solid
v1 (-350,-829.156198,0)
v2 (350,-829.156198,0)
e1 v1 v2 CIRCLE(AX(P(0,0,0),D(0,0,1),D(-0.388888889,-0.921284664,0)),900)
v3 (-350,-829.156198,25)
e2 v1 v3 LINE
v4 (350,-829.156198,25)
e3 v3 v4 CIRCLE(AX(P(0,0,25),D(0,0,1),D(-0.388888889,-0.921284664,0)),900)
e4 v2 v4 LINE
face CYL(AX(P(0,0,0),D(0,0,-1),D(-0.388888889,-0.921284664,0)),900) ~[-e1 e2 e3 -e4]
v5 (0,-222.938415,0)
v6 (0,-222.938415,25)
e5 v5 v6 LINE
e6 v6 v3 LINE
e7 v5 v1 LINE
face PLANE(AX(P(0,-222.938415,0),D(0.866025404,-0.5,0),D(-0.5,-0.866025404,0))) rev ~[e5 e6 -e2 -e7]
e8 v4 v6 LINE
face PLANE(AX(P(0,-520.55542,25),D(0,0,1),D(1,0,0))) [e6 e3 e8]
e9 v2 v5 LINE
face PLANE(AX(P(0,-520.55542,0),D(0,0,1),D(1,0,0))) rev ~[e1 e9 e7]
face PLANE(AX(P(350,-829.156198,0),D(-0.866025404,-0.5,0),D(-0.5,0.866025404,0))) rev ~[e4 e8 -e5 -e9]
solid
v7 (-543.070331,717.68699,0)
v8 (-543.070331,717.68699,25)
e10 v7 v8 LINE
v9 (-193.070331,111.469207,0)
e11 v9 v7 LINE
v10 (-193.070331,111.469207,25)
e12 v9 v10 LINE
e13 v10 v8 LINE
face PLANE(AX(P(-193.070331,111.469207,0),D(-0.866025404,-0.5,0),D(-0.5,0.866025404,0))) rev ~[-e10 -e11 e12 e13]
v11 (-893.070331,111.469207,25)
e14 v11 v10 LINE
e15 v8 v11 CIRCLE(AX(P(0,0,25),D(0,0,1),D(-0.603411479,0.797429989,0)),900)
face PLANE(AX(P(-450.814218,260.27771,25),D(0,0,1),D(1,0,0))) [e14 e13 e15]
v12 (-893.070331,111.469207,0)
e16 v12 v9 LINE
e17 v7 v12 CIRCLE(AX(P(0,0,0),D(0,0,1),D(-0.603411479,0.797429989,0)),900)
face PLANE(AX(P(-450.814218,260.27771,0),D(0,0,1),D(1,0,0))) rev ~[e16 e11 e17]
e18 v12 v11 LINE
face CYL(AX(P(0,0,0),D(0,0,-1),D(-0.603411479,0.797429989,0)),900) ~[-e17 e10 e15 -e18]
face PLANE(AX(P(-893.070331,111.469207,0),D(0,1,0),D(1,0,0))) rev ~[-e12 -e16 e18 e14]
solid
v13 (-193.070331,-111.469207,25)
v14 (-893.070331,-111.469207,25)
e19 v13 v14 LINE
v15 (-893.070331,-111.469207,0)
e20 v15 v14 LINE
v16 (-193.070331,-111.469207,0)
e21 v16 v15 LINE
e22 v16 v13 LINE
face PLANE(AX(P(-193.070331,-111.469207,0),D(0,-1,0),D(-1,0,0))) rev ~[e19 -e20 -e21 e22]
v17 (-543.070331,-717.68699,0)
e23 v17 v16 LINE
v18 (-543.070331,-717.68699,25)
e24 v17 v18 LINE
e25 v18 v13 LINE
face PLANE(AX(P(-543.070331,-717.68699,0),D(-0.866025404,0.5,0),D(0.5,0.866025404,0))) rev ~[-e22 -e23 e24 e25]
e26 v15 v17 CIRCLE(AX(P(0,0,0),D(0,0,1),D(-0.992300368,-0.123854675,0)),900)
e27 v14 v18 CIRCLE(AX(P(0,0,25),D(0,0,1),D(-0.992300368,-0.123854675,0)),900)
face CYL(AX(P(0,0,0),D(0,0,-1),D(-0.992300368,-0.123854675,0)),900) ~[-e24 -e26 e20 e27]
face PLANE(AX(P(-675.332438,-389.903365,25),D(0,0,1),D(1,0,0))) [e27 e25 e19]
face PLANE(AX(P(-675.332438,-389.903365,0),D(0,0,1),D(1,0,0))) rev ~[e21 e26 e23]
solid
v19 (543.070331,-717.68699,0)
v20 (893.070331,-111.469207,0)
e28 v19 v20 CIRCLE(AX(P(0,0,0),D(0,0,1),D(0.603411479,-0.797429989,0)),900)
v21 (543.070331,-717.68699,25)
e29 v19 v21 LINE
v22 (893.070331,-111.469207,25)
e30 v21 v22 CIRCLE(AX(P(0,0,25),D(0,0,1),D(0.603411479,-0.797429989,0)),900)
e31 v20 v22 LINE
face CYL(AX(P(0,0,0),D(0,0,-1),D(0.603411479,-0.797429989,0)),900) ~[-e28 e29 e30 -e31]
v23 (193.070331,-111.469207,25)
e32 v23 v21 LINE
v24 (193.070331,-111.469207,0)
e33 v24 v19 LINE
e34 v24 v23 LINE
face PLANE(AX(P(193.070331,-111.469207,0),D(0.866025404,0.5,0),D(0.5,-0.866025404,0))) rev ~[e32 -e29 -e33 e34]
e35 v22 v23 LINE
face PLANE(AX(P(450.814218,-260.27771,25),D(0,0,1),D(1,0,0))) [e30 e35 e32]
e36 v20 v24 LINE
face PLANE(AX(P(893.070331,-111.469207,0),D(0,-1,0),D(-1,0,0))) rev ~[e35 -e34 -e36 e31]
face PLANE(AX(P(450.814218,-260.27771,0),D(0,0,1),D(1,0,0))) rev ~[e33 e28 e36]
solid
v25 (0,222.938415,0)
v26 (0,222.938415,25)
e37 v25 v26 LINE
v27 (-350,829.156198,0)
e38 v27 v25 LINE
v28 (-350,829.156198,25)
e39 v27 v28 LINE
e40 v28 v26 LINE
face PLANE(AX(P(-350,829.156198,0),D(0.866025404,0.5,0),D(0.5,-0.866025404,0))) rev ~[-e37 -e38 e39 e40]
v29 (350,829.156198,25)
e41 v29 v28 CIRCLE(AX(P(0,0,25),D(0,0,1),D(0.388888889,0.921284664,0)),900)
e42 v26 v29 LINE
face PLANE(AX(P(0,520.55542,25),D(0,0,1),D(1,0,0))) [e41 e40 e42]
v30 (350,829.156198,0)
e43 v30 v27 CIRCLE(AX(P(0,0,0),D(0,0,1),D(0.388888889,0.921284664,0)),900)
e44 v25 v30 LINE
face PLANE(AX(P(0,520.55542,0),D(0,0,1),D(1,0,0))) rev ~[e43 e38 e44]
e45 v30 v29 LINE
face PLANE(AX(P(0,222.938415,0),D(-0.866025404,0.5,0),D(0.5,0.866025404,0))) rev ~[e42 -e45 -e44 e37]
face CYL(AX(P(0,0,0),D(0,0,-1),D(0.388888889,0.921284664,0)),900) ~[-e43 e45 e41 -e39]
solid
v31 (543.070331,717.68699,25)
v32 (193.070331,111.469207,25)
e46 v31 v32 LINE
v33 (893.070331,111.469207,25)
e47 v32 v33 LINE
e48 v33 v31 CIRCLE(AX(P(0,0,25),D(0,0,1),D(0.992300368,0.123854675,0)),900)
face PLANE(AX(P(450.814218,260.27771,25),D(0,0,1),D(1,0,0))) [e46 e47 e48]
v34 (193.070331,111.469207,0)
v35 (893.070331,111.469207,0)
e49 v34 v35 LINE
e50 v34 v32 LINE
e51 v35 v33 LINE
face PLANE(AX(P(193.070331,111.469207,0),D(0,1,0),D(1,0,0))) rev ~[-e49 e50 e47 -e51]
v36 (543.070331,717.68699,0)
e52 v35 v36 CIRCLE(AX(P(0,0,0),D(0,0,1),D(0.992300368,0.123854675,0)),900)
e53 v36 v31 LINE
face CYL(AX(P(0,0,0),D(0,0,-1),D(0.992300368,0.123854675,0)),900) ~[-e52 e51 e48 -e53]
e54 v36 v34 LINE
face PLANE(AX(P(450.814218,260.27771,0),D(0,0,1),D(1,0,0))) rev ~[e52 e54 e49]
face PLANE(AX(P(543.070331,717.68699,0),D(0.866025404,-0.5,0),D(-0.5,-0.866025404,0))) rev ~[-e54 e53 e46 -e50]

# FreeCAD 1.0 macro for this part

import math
import FreeCAD as App
import Part
import Sketcher

V = App.Vector
Q = App.Units.Quantity

doc = App.newDocument("Part")
body = doc.addObject("PartDesign::Body", "Body")

# Sketch on XY plane
sketch1 = body.newObject("Sketcher::SketchObject", "Sketch")
sketch1.AttachmentSupport = (doc.getObject("XY_Plane"), [""])
sketch1.MapMode = "FlatFace"
sketch1.addGeometry([
    Part.LineSegment(V(-193.070331, 111.469207, 0), V(-543.070331, 717.68699, 0)),
    Part.ArcOfCircle(Part.Circle(V(0, 0, 0), V(0, 0, 1), 900), math.radians(127.11462), math.radians(172.88538)),
    Part.LineSegment(V(-893.070331, 111.469207, 0), V(-193.070331, 111.469207, 0)),
], False)
sketch1.addConstraint([
    Sketcher.Constraint("Coincident", 0, 2, 1, 1),
    Sketcher.Constraint("Coincident", 1, 2, 2, 1),
    Sketcher.Constraint("Coincident", 2, 2, 0, 1),
    Sketcher.Constraint("Horizontal", 2),
    Sketcher.Constraint("Coincident", 1, 3, -1, 1),
    Sketcher.Constraint("Radius", 1, Q("900 mm")),
    Sketcher.Constraint("DistanceX", 2, 1, 2, 2, Q("700 mm")),
    Sketcher.Constraint("Angle", 0, Q("120 deg")),
    Sketcher.Constraint("Distance", 0, Q("700 mm")),
])
pad1 = body.newObject("PartDesign::Pad", "Pad")
pad1.Profile = sketch1
pad1.Length = 25
body2 = doc.addObject("PartDesign::Body", "Body001")

# Sketch on XY plane
sketch2 = body2.newObject("Sketcher::SketchObject", "Sketch001")
sketch2.AttachmentSupport = (doc.getObject("XY_Plane001"), [""])
sketch2.MapMode = "FlatFace"
sketch2.addGeometry([
    Part.LineSegment(V(0, 222.938415, 0), V(350, 829.156198, 0)),
    Part.ArcOfCircle(Part.Circle(V(0, 0, 0), V(0, 0, 1), 900), math.radians(67.11462), math.radians(112.88538)),
    Part.LineSegment(V(-350, 829.156198, 0), V(0, 222.938415, 0)),
], False)
sketch2.addConstraint([
    Sketcher.Constraint("Coincident", 0, 2, 1, 1),
    Sketcher.Constraint("Coincident", 1, 2, 2, 1),
    Sketcher.Constraint("Coincident", 2, 2, 0, 1),
    Sketcher.Constraint("Coincident", 1, 3, -1, 1),
    Sketcher.Constraint("PointOnObject", 2, 2, -2),
    Sketcher.Constraint("Equal", 0, 2),
    Sketcher.Constraint("Radius", 1, Q("900 mm")),
    Sketcher.Constraint("Angle", 0, Q("60 deg")),
    Sketcher.Constraint("Distance", 0, Q("700 mm")),
])
pad2 = body2.newObject("PartDesign::Pad", "Pad001")
pad2.Profile = sketch2
pad2.Length = 25
body3 = doc.addObject("PartDesign::Body", "Body002")

# Sketch on XY plane
sketch3 = body3.newObject("Sketcher::SketchObject", "Sketch002")
sketch3.AttachmentSupport = (doc.getObject("XY_Plane002"), [""])
sketch3.MapMode = "FlatFace"
sketch3.addGeometry([
    Part.LineSegment(V(193.070331, 111.469207, 0), V(893.070331, 111.469207, 0)),
    Part.ArcOfCircle(Part.Circle(V(0, 0, 0), V(0, 0, 1), 900), math.radians(7.11462), math.radians(52.88538)),
    Part.LineSegment(V(543.070331, 717.68699, 0), V(193.070331, 111.469207, 0)),
], False)
sketch3.addConstraint([
    Sketcher.Constraint("Coincident", 0, 2, 1, 1),
    Sketcher.Constraint("Coincident", 1, 2, 2, 1),
    Sketcher.Constraint("Coincident", 2, 2, 0, 1),
    Sketcher.Constraint("Horizontal", 0),
    Sketcher.Constraint("Coincident", 1, 3, -1, 1),
    Sketcher.Constraint("Radius", 1, Q("900 mm")),
    Sketcher.Constraint("DistanceX", 0, 1, 0, 2, Q("700 mm")),
    Sketcher.Constraint("Angle", 2, Q("-120 deg")),
    Sketcher.Constraint("Distance", 2, Q("700 mm")),
])
pad3 = body3.newObject("PartDesign::Pad", "Pad002")
pad3.Profile = sketch3
pad3.Length = 25
body4 = doc.addObject("PartDesign::Body", "Body003")

# Sketch on XY plane
sketch4 = body4.newObject("Sketcher::SketchObject", "Sketch003")
sketch4.AttachmentSupport = (doc.getObject("XY_Plane003"), [""])
sketch4.MapMode = "FlatFace"
sketch4.addGeometry([
    Part.LineSegment(V(193.070331, -111.469207, 0), V(543.070331, -717.68699, 0)),
    Part.ArcOfCircle(Part.Circle(V(0, 0, 0), V(0, 0, 1), 900), math.radians(-52.88538), math.radians(-7.11462)),
    Part.LineSegment(V(893.070331, -111.469207, 0), V(193.070331, -111.469207, 0)),
], False)
sketch4.addConstraint([
    Sketcher.Constraint("Coincident", 0, 2, 1, 1),
    Sketcher.Constraint("Coincident", 1, 2, 2, 1),
    Sketcher.Constraint("Coincident", 2, 2, 0, 1),
    Sketcher.Constraint("Horizontal", 2),
    Sketcher.Constraint("Coincident", 1, 3, -1, 1),
    Sketcher.Constraint("Radius", 1, Q("900 mm")),
    Sketcher.Constraint("DistanceX", 2, 2, 2, 1, Q("700 mm")),
    Sketcher.Constraint("Angle", 0, Q("-60 deg")),
    Sketcher.Constraint("Distance", 0, Q("700 mm")),
])
pad4 = body4.newObject("PartDesign::Pad", "Pad003")
pad4.Profile = sketch4
pad4.Length = 25
body5 = doc.addObject("PartDesign::Body", "Body004")

# Sketch on XY plane
sketch5 = body5.newObject("Sketcher::SketchObject", "Sketch004")
sketch5.AttachmentSupport = (doc.getObject("XY_Plane004"), [""])
sketch5.MapMode = "FlatFace"
sketch5.addGeometry([
    Part.LineSegment(V(0, -222.938415, 0), V(-350, -829.156198, 0)),
    Part.ArcOfCircle(Part.Circle(V(0, 0, 0), V(0, 0, 1), 900), math.radians(-112.88538), math.radians(-67.11462)),
    Part.LineSegment(V(350, -829.156198, 0), V(0, -222.938415, 0)),
], False)
sketch5.addConstraint([
    Sketcher.Constraint("Coincident", 0, 2, 1, 1),
    Sketcher.Constraint("Coincident", 1, 2, 2, 1),
    Sketcher.Constraint("Coincident", 2, 2, 0, 1),
    Sketcher.Constraint("Coincident", 1, 3, -1, 1),
    Sketcher.Constraint("PointOnObject", 2, 2, -2),
    Sketcher.Constraint("Equal", 0, 2),
    Sketcher.Constraint("Radius", 1, Q("900 mm")),
    Sketcher.Constraint("Angle", 0, Q("-120 deg")),
    Sketcher.Constraint("Distance", 0, Q("700 mm")),
])
pad5 = body5.newObject("PartDesign::Pad", "Pad004")
pad5.Profile = sketch5
pad5.Length = 25
body6 = doc.addObject("PartDesign::Body", "Body005")

# Sketch on XY plane
sketch6 = body6.newObject("Sketcher::SketchObject", "Sketch005")
sketch6.AttachmentSupport = (doc.getObject("XY_Plane005"), [""])
sketch6.MapMode = "FlatFace"
sketch6.addGeometry([
    Part.LineSegment(V(-543.070331, -717.68699, 0), V(-193.070331, -111.469207, 0)),
    Part.LineSegment(V(-193.070331, -111.469207, 0), V(-893.070331, -111.469207, 0)),
    Part.ArcOfCircle(Part.Circle(V(0, 0, 0), V(0, 0, 1), 900), math.radians(-172.88538), math.radians(-127.11462)),
], False)
sketch6.addConstraint([
    Sketcher.Constraint("Coincident", 0, 2, 1, 1),
    Sketcher.Constraint("Coincident", 1, 2, 2, 1),
    Sketcher.Constraint("Coincident", 2, 2, 0, 1),
    Sketcher.Constraint("Horizontal", 1),
    Sketcher.Constraint("Coincident", 2, 3, -1, 1),
    Sketcher.Constraint("Radius", 2, Q("900 mm")),
    Sketcher.Constraint("DistanceX", 1, 2, 1, 1, Q("700 mm")),
    Sketcher.Constraint("Angle", 0, Q("60 deg")),
    Sketcher.Constraint("Distance", 0, Q("700 mm")),
])
pad6 = body6.newObject("PartDesign::Pad", "Pad005")
pad6.Profile = sketch6
pad6.Length = 25

doc.recompute()
